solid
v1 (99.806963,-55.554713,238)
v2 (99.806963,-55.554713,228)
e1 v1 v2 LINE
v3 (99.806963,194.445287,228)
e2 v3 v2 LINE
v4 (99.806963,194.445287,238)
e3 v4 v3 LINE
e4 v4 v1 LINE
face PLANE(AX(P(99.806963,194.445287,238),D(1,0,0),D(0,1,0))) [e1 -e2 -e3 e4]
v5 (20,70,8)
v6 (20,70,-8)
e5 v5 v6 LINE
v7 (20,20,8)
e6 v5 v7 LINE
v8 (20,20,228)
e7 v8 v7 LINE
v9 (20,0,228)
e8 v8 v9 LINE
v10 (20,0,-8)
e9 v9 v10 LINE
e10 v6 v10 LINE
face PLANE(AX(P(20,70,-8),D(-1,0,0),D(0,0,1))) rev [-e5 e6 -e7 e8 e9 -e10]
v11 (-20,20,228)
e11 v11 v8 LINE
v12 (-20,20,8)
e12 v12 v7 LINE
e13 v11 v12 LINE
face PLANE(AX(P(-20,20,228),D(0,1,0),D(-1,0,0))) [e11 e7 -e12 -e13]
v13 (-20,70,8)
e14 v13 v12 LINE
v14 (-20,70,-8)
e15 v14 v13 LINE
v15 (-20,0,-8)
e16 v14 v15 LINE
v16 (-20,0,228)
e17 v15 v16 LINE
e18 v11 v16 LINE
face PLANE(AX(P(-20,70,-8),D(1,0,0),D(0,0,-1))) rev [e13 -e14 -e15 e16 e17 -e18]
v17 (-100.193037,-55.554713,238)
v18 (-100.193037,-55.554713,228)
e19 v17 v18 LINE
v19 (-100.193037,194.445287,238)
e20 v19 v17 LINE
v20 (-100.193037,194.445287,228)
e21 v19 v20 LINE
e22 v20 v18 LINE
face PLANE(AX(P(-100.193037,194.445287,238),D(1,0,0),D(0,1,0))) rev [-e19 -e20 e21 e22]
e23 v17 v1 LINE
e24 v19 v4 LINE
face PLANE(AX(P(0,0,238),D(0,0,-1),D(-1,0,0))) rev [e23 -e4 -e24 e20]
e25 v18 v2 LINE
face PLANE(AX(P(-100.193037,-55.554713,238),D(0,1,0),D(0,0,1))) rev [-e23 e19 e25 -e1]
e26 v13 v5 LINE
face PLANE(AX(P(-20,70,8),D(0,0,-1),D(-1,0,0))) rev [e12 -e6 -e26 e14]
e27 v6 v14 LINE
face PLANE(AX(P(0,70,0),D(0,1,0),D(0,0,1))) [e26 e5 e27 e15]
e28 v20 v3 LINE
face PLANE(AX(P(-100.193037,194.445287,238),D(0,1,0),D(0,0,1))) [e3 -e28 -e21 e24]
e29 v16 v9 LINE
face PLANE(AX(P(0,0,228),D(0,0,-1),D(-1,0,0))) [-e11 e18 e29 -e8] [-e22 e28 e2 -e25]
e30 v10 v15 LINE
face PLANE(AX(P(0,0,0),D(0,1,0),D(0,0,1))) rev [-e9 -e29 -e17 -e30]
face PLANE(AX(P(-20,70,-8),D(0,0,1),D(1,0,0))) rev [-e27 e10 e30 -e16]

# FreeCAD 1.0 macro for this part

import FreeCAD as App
import Part
import Sketcher

doc = App.newDocument("Part")
params = doc.addObject("Spreadsheet::Sheet", "Params")
for row, (alias, value) in enumerate([
    ("sketch1_width", "40 mm"),
    ("sketch1_height", "16 mm"),
    ("pad1_length", "70 mm"),
    ("sketch2_width", "40 mm"),
    ("sketch2_height", "20 mm"),
    ("pad2_length", "220 mm"),
    ("sketch3_width", "200 mm"),
    ("sketch3_height", "250 mm"),
    ("pad3_length", "10 mm"),
], start=1):
    params.set(f"A{row}", alias)
    params.set(f"B{row}", "=" + value)
    params.setAlias(f"B{row}", alias)

body = doc.addObject("PartDesign::Body", "Body")

sketch1 = doc.addObject("Sketcher::SketchObject", "Sketch")
body.addObject(sketch1)
sketch1.AttachmentSupport = (doc.XZ_Plane, [""])
sketch1.MapMode = "FlatFace"
sketch1.addGeometry([
    Part.LineSegment(App.Vector(-20, -8, 0), App.Vector(-20, 8, 0)),
    Part.LineSegment(App.Vector(-20, 8, 0), App.Vector(20, 8, 0)),
    Part.LineSegment(App.Vector(20, 8, 0), App.Vector(20, -8, 0)),
    Part.LineSegment(App.Vector(20, -8, 0), App.Vector(-20, -8, 0)),
], False)
sketch1.addConstraint([
    Sketcher.Constraint("Coincident", 0, 2, 1, 1),
    Sketcher.Constraint("Coincident", 1, 2, 2, 1),
    Sketcher.Constraint("Coincident", 2, 2, 3, 1),
    Sketcher.Constraint("Coincident", 3, 2, 0, 1),
    Sketcher.Constraint("Vertical", 0),
    Sketcher.Constraint("Horizontal", 1),
    Sketcher.Constraint("Vertical", 2),
    Sketcher.Constraint("Horizontal", 3),
    Sketcher.Constraint("Symmetric", 0, 2, 2, 2, -1, 1),
    Sketcher.Constraint("DistanceX", 1, 1, 1, 2, 40.0),
    Sketcher.Constraint("DistanceY", 0, 1, 0, 2, 16.0),
])
sketch1.setExpression("Constraints[9]", "Params.sketch1_width")
sketch1.setExpression("Constraints[10]", "Params.sketch1_height")
pad1 = doc.addObject("PartDesign::Pad", "Pad")
body.addObject(pad1)
pad1.Profile = sketch1
pad1.setExpression("Length", "Params.pad1_length")
pad1.Reversed = True

sketch2 = doc.addObject("Sketcher::SketchObject", "Sketch001")
body.addObject(sketch2)
sketch2.AttachmentSupport = (doc.XY_Plane, [""])
sketch2.MapMode = "FlatFace"
sketch2.AttachmentOffset = App.Placement(App.Vector(0, 0, 8), App.Rotation())
sketch2.addGeometry([
    Part.LineSegment(App.Vector(-20, 20, 0), App.Vector(-20, 0, 0)),
    Part.LineSegment(App.Vector(-20, 0, 0), App.Vector(20, 0, 0)),
    Part.LineSegment(App.Vector(20, 0, 0), App.Vector(20, 20, 0)),
    Part.LineSegment(App.Vector(20, 20, 0), App.Vector(-20, 20, 0)),
], False)
sketch2.addConstraint([
    Sketcher.Constraint("Coincident", 0, 2, 1, 1),
    Sketcher.Constraint("Coincident", 1, 2, 2, 1),
    Sketcher.Constraint("Coincident", 2, 2, 3, 1),
    Sketcher.Constraint("Coincident", 3, 2, 0, 1),
    Sketcher.Constraint("Vertical", 0),
    Sketcher.Constraint("Horizontal", 1),
    Sketcher.Constraint("Vertical", 2),
    Sketcher.Constraint("Horizontal", 3),
    Sketcher.Constraint("Symmetric", 0, 2, 1, 2, -1, 1),
    Sketcher.Constraint("DistanceX", 1, 1, 1, 2, 40.0),
    Sketcher.Constraint("DistanceY", 0, 2, 0, 1, 20.0),
])
sketch2.setExpression("Constraints[9]", "Params.sketch2_width")
sketch2.setExpression("Constraints[10]", "Params.sketch2_height")
pad2 = doc.addObject("PartDesign::Pad", "Pad001")
body.addObject(pad2)
pad2.Profile = sketch2
pad2.setExpression("Length", "Params.pad2_length")

sketch3 = doc.addObject("Sketcher::SketchObject", "Sketch002")
body.addObject(sketch3)
sketch3.AttachmentSupport = (doc.XY_Plane, [""])
sketch3.MapMode = "FlatFace"
sketch3.AttachmentOffset = App.Placement(App.Vector(0, 0, 228), App.Rotation())
sketch3.addGeometry([
    Part.LineSegment(App.Vector(-100, 194, 0), App.Vector(-100, -56, 0)),
    Part.LineSegment(App.Vector(-100, -56, 0), App.Vector(100, -56, 0)),
    Part.LineSegment(App.Vector(100, -56, 0), App.Vector(100, 194, 0)),
    Part.LineSegment(App.Vector(100, 194, 0), App.Vector(-100, 194, 0)),
], False)
sketch3.addConstraint([
    Sketcher.Constraint("Coincident", 0, 2, 1, 1),
    Sketcher.Constraint("Coincident", 1, 2, 2, 1),
    Sketcher.Constraint("Coincident", 2, 2, 3, 1),
    Sketcher.Constraint("Coincident", 3, 2, 0, 1),
    Sketcher.Constraint("Vertical", 0),
    Sketcher.Constraint("Horizontal", 1),
    Sketcher.Constraint("Vertical", 2),
    Sketcher.Constraint("Horizontal", 3),
    Sketcher.Constraint("DistanceX", 1, 1, 1, 2, 200.0),
    Sketcher.Constraint("DistanceY", 0, 2, 0, 1, 250.0),
    Sketcher.Constraint("DistanceX", 0, 2, -1, 1, 100.193037),
    Sketcher.Constraint("DistanceY", 0, 2, -1, 1, 55.554713),
])
sketch3.setExpression("Constraints[8]", "Params.sketch3_width")
sketch3.setExpression("Constraints[9]", "Params.sketch3_height")
pad3 = doc.addObject("PartDesign::Pad", "Pad002")
body.addObject(pad3)
pad3.Profile = sketch3
pad3.setExpression("Length", "Params.pad3_length")

doc.recompute()
